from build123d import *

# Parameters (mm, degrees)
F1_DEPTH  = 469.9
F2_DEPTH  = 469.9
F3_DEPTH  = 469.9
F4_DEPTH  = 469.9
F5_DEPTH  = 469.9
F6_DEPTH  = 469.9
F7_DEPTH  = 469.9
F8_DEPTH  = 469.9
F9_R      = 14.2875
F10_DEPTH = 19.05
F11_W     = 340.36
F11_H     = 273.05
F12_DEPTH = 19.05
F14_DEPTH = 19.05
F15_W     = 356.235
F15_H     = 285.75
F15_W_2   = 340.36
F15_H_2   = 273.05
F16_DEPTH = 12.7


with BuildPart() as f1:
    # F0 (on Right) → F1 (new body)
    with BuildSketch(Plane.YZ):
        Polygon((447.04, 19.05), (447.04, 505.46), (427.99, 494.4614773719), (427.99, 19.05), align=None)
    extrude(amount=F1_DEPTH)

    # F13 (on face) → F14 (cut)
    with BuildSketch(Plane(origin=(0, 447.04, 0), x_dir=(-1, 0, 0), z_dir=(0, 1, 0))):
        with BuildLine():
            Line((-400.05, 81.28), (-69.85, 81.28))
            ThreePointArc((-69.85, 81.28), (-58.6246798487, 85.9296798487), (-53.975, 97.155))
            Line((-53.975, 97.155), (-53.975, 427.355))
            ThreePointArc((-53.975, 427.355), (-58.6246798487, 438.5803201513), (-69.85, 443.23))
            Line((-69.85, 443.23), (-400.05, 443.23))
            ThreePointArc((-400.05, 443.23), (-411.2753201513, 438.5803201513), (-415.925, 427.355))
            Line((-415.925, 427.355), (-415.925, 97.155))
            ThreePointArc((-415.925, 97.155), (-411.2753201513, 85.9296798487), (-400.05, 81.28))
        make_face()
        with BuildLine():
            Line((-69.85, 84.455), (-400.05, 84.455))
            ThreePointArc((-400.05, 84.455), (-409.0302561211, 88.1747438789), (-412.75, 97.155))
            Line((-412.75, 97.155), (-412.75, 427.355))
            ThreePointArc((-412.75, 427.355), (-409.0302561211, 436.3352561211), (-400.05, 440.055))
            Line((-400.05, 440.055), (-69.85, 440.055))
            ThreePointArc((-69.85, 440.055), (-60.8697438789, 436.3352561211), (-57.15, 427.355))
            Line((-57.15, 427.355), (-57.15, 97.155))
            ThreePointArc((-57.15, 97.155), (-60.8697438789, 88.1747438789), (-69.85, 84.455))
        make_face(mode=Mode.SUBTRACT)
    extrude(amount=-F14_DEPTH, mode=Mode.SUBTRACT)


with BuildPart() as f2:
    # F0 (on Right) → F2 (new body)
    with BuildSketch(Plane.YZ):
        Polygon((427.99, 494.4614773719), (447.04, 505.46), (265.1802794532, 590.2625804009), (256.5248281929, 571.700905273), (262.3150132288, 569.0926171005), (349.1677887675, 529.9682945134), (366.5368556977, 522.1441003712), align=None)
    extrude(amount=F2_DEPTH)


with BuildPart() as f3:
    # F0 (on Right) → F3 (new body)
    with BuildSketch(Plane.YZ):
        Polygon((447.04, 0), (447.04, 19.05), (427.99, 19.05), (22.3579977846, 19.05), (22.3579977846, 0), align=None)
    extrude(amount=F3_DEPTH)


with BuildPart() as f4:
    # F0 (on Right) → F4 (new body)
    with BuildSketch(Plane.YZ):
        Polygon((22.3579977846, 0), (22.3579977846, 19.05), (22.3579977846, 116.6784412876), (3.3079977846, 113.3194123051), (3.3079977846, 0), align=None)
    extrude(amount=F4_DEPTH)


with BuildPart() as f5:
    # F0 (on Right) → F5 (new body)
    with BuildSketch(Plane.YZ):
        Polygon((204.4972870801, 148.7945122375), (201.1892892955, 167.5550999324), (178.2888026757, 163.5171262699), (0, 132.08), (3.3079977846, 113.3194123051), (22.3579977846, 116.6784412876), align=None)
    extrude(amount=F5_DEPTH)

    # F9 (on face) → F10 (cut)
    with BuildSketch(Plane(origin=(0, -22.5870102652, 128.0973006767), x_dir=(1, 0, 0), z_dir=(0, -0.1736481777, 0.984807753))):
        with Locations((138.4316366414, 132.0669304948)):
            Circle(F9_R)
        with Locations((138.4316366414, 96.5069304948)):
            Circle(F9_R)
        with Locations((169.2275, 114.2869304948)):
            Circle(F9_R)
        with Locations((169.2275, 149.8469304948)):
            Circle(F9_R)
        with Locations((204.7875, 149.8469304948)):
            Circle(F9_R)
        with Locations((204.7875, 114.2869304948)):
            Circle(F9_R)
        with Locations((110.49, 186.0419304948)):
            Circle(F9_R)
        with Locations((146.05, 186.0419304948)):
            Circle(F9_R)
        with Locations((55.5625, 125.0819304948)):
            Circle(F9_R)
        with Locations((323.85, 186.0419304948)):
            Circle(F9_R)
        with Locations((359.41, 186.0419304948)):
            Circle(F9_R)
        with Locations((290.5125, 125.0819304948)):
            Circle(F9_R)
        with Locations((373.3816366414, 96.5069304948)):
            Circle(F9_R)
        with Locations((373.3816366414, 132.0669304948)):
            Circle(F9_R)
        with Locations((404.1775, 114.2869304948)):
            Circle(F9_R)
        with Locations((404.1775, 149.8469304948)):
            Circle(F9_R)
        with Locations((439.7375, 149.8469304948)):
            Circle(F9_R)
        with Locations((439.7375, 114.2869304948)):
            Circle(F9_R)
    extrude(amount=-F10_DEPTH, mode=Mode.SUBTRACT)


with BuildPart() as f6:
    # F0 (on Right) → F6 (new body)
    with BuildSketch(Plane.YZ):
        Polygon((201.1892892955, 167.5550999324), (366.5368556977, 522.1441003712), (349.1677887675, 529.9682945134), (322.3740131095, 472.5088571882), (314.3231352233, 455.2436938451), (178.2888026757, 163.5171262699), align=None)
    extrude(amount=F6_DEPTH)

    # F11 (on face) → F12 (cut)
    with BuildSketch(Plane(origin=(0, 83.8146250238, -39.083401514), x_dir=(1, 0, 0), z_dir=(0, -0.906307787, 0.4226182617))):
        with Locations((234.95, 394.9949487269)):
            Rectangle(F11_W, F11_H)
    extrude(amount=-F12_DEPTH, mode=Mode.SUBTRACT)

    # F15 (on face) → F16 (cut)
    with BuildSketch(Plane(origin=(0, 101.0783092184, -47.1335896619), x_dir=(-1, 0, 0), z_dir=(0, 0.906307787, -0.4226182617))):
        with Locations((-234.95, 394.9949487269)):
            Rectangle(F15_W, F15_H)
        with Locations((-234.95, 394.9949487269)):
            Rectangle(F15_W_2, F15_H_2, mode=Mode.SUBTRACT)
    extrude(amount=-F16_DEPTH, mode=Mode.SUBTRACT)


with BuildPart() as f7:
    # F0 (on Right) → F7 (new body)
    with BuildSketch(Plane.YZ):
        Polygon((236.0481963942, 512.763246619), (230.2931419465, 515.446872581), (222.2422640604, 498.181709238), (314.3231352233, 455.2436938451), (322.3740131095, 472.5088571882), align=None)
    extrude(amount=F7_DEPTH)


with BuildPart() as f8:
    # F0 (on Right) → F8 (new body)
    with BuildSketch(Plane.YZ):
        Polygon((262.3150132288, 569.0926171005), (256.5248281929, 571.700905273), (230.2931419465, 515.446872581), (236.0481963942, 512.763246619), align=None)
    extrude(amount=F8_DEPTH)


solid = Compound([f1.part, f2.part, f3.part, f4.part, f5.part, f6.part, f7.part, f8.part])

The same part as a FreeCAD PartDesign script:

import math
import FreeCAD as App
import Part
import Sketcher
Q = App.Units.Quantity


def add_polygon(sketch, points):
    """Adds a closed chain of lines whose ends are joined by coincident constraints."""
    first, n = sketch.GeometryCount, len(points)
    for a, b in zip(points, points[1:] + points[:1]):
        sketch.addGeometry(Part.LineSegment(App.Vector(*a, 0), App.Vector(*b, 0)), False)
    for i in range(n):
        sketch.addConstraint(Sketcher.Constraint("Coincident", first + i, 2, first + (i + 1) % n, 1))

doc = App.newDocument("Part")
body = doc.addObject("PartDesign::Body", "Body")
body.AllowCompound = True

# Sketch on YZ plane
sketch1 = doc.addObject("Sketcher::SketchObject", "Sketch")
body.addObject(sketch1)
sketch1.AttachmentSupport = (doc.YZ_Plane, [""])
sketch1.MapMode = "FlatFace"
add_polygon(sketch1, [(447, 19), (447, 505), (428, 494), (428, 19)])  # lines 0-3
sketch1.addConstraint([
    Sketcher.Constraint("Vertical", 0),
    Sketcher.Constraint("Vertical", 2),
    Sketcher.Constraint("Horizontal", 3),
    Sketcher.Constraint("Angle", 1, Q("-150 deg")),
    Sketcher.Constraint("DistanceX", 3, 1, 3, 2, Q("0.75 in")),
    Sketcher.Constraint("DistanceY", 0, 1, 0, 2, Q("19.15 in")),
    Sketcher.Constraint("DistanceX", -1, 1, 0, 2, Q("17.6 in")),
    Sketcher.Constraint("DistanceY", -1, 1, 0, 2, Q("19.9 in")),
])
pad1 = doc.addObject("PartDesign::Pad", "Pad")
body.addObject(pad1)
pad1.Profile = sketch1
pad1.Length = Q("18.5 in")

# Sketch on XZ plane
sketch2 = doc.addObject("Sketcher::SketchObject", "Sketch001")
body.addObject(sketch2)
sketch2.AttachmentSupport = (doc.XZ_Plane, [""])
sketch2.MapMode = "FlatFace"
sketch2.AttachmentOffset = App.Placement(App.Vector(0, 0, -17.6 * 25.4), App.Rotation())
sketch2.addGeometry([
    Part.LineSegment(App.Vector(400, 81, 0), App.Vector(70, 81, 0)),  # 0
    Part.ArcOfCircle(Part.Circle(App.Vector(70, 97, 0), App.Vector(0, 0, 1), 16), math.radians(180), math.radians(270)),  # 1
    Part.LineSegment(App.Vector(54, 97, 0), App.Vector(54, 427, 0)),  # 2
    Part.ArcOfCircle(Part.Circle(App.Vector(70, 427, 0), App.Vector(0, 0, 1), 16), math.radians(90), math.radians(180)),  # 3
    Part.LineSegment(App.Vector(70, 443, 0), App.Vector(400, 443, 0)),  # 4
    Part.ArcOfCircle(Part.Circle(App.Vector(400, 427, 0), App.Vector(0, 0, 1), 16), math.radians(0), math.radians(90)),  # 5
    Part.LineSegment(App.Vector(416, 427, 0), App.Vector(416, 97, 0)),  # 6
    Part.ArcOfCircle(Part.Circle(App.Vector(400, 97, 0), App.Vector(0, 0, 1), 16), math.radians(-90), math.radians(0)),  # 7
    Part.ArcOfCircle(Part.Circle(App.Vector(70, 97, 0), App.Vector(0, 0, 1), 13), math.radians(180), math.radians(270)),  # 8
    Part.LineSegment(App.Vector(70, 84, 0), App.Vector(400, 84, 0)),  # 9
    Part.ArcOfCircle(Part.Circle(App.Vector(400, 97, 0), App.Vector(0, 0, 1), 13), math.radians(-90), math.radians(0)),  # 10
    Part.LineSegment(App.Vector(413, 97, 0), App.Vector(413, 427, 0)),  # 11
    Part.ArcOfCircle(Part.Circle(App.Vector(400, 427, 0), App.Vector(0, 0, 1), 13), math.radians(0), math.radians(90)),  # 12
    Part.LineSegment(App.Vector(400, 440, 0), App.Vector(70, 440, 0)),  # 13
    Part.ArcOfCircle(Part.Circle(App.Vector(70, 427, 0), App.Vector(0, 0, 1), 13), math.radians(90), math.radians(180)),  # 14
    Part.LineSegment(App.Vector(57, 427, 0), App.Vector(57, 97, 0)),  # 15
], False)
sketch2.addConstraint([
    Sketcher.Constraint("Tangent", 0, 2, 1, 2),
    Sketcher.Constraint("Tangent", 1, 1, 2, 1),
    Sketcher.Constraint("Tangent", 2, 2, 3, 2),
    Sketcher.Constraint("Tangent", 3, 1, 4, 1),
    Sketcher.Constraint("Tangent", 4, 2, 5, 2),
    Sketcher.Constraint("Tangent", 5, 1, 6, 1),
    Sketcher.Constraint("Tangent", 6, 2, 7, 2),
    Sketcher.Constraint("Tangent", 7, 1, 0, 1),
    Sketcher.Constraint("Tangent", 8, 2, 9, 1),
    Sketcher.Constraint("Tangent", 9, 2, 10, 1),
    Sketcher.Constraint("Tangent", 10, 2, 11, 1),
    Sketcher.Constraint("Tangent", 11, 2, 12, 1),
    Sketcher.Constraint("Tangent", 12, 2, 13, 1),
    Sketcher.Constraint("Tangent", 13, 2, 14, 1),
    Sketcher.Constraint("Tangent", 14, 2, 15, 1),
    Sketcher.Constraint("Tangent", 15, 2, 8, 1),
    Sketcher.Constraint("Horizontal", 0),
    Sketcher.Constraint("Vertical", 2),
    Sketcher.Constraint("Horizontal", 4),
    Sketcher.Constraint("Vertical", 6),
    Sketcher.Constraint("Horizontal", 9),
    Sketcher.Constraint("Vertical", 11),
    Sketcher.Constraint("Horizontal", 13),
    Sketcher.Constraint("Vertical", 15),
    Sketcher.Constraint("Coincident", 8, 3, 1, 3),
    Sketcher.Constraint("Coincident", 10, 3, 7, 3),
    Sketcher.Constraint("Coincident", 12, 3, 5, 3),
    Sketcher.Constraint("Equal", 1, 3),
    Sketcher.Constraint("Equal", 3, 5),
    Sketcher.Constraint("Equal", 5, 7),
    Sketcher.Constraint("Equal", 12, 14),
    Sketcher.Constraint("Equal", 13, 2),
    Sketcher.Constraint("Radius", 8, Q("0.5 in")),
    Sketcher.Constraint("DistanceX", 0, 2, 0, 1, Q("13 in")),
    Sketcher.Constraint("Radius", 1, Q("0.625 in")),
    Sketcher.Constraint("DistanceY", -1, 1, 0, 2, Q("3.2 in")),
    Sketcher.Constraint("DistanceX", -1, 1, 1, 3, Q("2.75 in")),
])
pocket1 = doc.addObject("PartDesign::Pocket", "Pocket")
body.addObject(pocket1)
pocket1.Profile = sketch2
pocket1.Length = Q("0.75 in")
pocket1.Reversed = True
body2 = doc.addObject("PartDesign::Body", "Body001")

# Sketch on YZ plane
sketch3 = doc.addObject("Sketcher::SketchObject", "Sketch002")
body2.addObject(sketch3)
sketch3.AttachmentSupport = (doc.getObject("YZ_Plane001"), [""])
sketch3.MapMode = "FlatFace"
add_polygon(sketch3, [(428, 494), (447, 505), (265, 590), (257, 572), (262, 569), (349, 530), (367, 522)])  # lines 0-6
sketch3.addConstraint([
    Sketcher.Constraint("Perpendicular", 1, 2),
    Sketcher.Constraint("Parallel", 3, 4),
    Sketcher.Constraint("Parallel", 4, 5),
    Sketcher.Constraint("Parallel", 5, 6),
    Sketcher.Constraint("Angle", 0, Q("30 deg")),
    Sketcher.Constraint("Angle", 1, Q("155 deg")),
    Sketcher.Constraint("Distance", 1, Q("7.9 in")),
    Sketcher.Constraint("DistanceX", -1, 1, 0, 2, Q("17.6 in")),
    Sketcher.Constraint("DistanceY", -1, 1, 0, 2, Q("19.9 in")),
    Sketcher.Constraint("Distance", 5, Q("0.75 in")),
    Sketcher.Constraint("DistanceX", -1, 1, 6, 2, Q("16.85 in")),
    Sketcher.Constraint("Angle", 3, Q("-24.25 deg")),
    Sketcher.Constraint("DistanceY", -1, 1, 5, 2, 522.1441),
    Sketcher.Constraint("Distance", 4, 95.258161),
])
pad2 = doc.addObject("PartDesign::Pad", "Pad001")
body2.addObject(pad2)
pad2.Profile = sketch3
pad2.Length = Q("18.5 in")
body3 = doc.addObject("PartDesign::Body", "Body002")

# Sketch on YZ plane
sketch4 = doc.addObject("Sketcher::SketchObject", "Sketch003")
body3.addObject(sketch4)
sketch4.AttachmentSupport = (doc.getObject("YZ_Plane002"), [""])
sketch4.MapMode = "FlatFace"
add_polygon(sketch4, [(447, 0), (447, 19), (22, 19), (22, 0)])  # lines 0-3
sketch4.addConstraint([
    Sketcher.Constraint("Vertical", 0),
    Sketcher.Constraint("Horizontal", 1),
    Sketcher.Constraint("Vertical", 2),
    Sketcher.Constraint("Horizontal", 3),
    Sketcher.Constraint("PointOnObject", 2, 2, -1),
    Sketcher.Constraint("DistanceY", 0, 1, 0, 2, Q("0.75 in")),
    Sketcher.Constraint("DistanceX", -1, 1, 0, 2, Q("17.6 in")),
    Sketcher.Constraint("DistanceX", 1, 2, 1, 1, 424.682002),
])
pad3 = doc.addObject("PartDesign::Pad", "Pad002")
body3.addObject(pad3)
pad3.Profile = sketch4
pad3.Length = Q("18.5 in")
body4 = doc.addObject("PartDesign::Body", "Body003")

# Sketch on YZ plane
sketch5 = doc.addObject("Sketcher::SketchObject", "Sketch004")
body4.addObject(sketch5)
sketch5.AttachmentSupport = (doc.getObject("YZ_Plane003"), [""])
sketch5.MapMode = "FlatFace"
add_polygon(sketch5, [(22, 0), (22, 117), (3, 113), (3, 0)])  # lines 0-3
sketch5.addConstraint([
    Sketcher.Constraint("Vertical", 0),
    Sketcher.Constraint("Vertical", 2),
    Sketcher.Constraint("Horizontal", 3),
    Sketcher.Constraint("PointOnObject", 2, 2, -1),
    Sketcher.Constraint("Angle", 1, Q("-170 deg")),
    Sketcher.Constraint("DistanceX", 3, 1, 3, 2, Q("0.75 in")),
    Sketcher.Constraint("DistanceY", 0, 1, 0, 2, 116.678441),
    Sketcher.Constraint("DistanceX", -1, 1, 0, 2, 22.357998),
])
pad4 = doc.addObject("PartDesign::Pad", "Pad003")
body4.addObject(pad4)
pad4.Profile = sketch5
pad4.Length = Q("18.5 in")
body5 = doc.addObject("PartDesign::Body", "Body004")

# Sketch on YZ plane
sketch6 = doc.addObject("Sketcher::SketchObject", "Sketch005")
body5.addObject(sketch6)
sketch6.AttachmentSupport = (doc.getObject("YZ_Plane004"), [""])
sketch6.MapMode = "FlatFace"
add_polygon(sketch6, [(204, 149), (201, 168), (178, 164), (0, 132), (3, 113)])  # lines 0-4
sketch6.addConstraint([
    Sketcher.Constraint("PointOnObject", 2, 2, -2),
    Sketcher.Constraint("Perpendicular", 0, 1),
    Sketcher.Constraint("Parallel", 1, 2),
    Sketcher.Constraint("Perpendicular", 2, 3),
    Sketcher.Constraint("Perpendicular", 3, 4),
    Sketcher.Constraint("Angle", 0, Q("100 deg")),
    Sketcher.Constraint("DistanceY", -1, 1, 2, 2, Q("5.2 in")),
    Sketcher.Constraint("Distance", 0, Q("0.75 in")),
    Sketcher.Constraint("DistanceY", -1, 1, 0, 2, 167.5551),
    Sketcher.Constraint("Distance", 1, 23.253764),
])
pad5 = doc.addObject("PartDesign::Pad", "Pad004")
body5.addObject(pad5)
pad5.Profile = sketch6
pad5.Length = Q("18.5 in")

# Sketch on an angled plane
sketch7 = doc.addObject("Sketcher::SketchObject", "Sketch006")
body5.addObject(sketch7)
sketch7.Placement = App.Placement(App.Vector(0, -22.58701, 128.097301), App.Rotation(App.Vector(1, 0, 0), App.Vector(0, 0.984807753, 0.173648178), App.Vector(0, -0.173648178, 0.984807753), "ZXY"))
sketch7.addGeometry([
    Part.Circle(App.Vector(138, 132, 0), App.Vector(0, 0, 1), 14),  # 0
    Part.Circle(App.Vector(138, 97, 0), App.Vector(0, 0, 1), 14),  # 1
    Part.Circle(App.Vector(169, 114, 0), App.Vector(0, 0, 1), 14),  # 2
    Part.Circle(App.Vector(169, 150, 0), App.Vector(0, 0, 1), 14),  # 3
    Part.Circle(App.Vector(205, 150, 0), App.Vector(0, 0, 1), 14),  # 4
    Part.Circle(App.Vector(205, 114, 0), App.Vector(0, 0, 1), 14),  # 5
    Part.Circle(App.Vector(110, 186, 0), App.Vector(0, 0, 1), 14),  # 6
    Part.Circle(App.Vector(146, 186, 0), App.Vector(0, 0, 1), 14),  # 7
    Part.Circle(App.Vector(56, 125, 0), App.Vector(0, 0, 1), 14),  # 8
    Part.Circle(App.Vector(324, 186, 0), App.Vector(0, 0, 1), 14),  # 9
    Part.Circle(App.Vector(359, 186, 0), App.Vector(0, 0, 1), 14),  # 10
    Part.Circle(App.Vector(291, 125, 0), App.Vector(0, 0, 1), 14),  # 11
    Part.Circle(App.Vector(373, 97, 0), App.Vector(0, 0, 1), 14),  # 12
    Part.Circle(App.Vector(373, 132, 0), App.Vector(0, 0, 1), 14),  # 13
    Part.Circle(App.Vector(404, 114, 0), App.Vector(0, 0, 1), 14),  # 14
    Part.Circle(App.Vector(404, 150, 0), App.Vector(0, 0, 1), 14),  # 15
    Part.Circle(App.Vector(440, 150, 0), App.Vector(0, 0, 1), 14),  # 16
    Part.Circle(App.Vector(440, 114, 0), App.Vector(0, 0, 1), 14),  # 17
], False)
sketch7.addConstraint([
    Sketcher.Constraint("Equal", 0, 1),
    Sketcher.Constraint("Equal", 1, 2),
    Sketcher.Constraint("Equal", 2, 3),
    Sketcher.Constraint("Equal", 3, 4),
    Sketcher.Constraint("Equal", 4, 5),
    Sketcher.Constraint("Equal", 5, 6),
    Sketcher.Constraint("Equal", 6, 7),
    Sketcher.Constraint("Equal", 7, 8),
    Sketcher.Constraint("Equal", 8, 9),
    Sketcher.Constraint("Equal", 9, 10),
    Sketcher.Constraint("Equal", 10, 11),
    Sketcher.Constraint("Equal", 11, 12),
    Sketcher.Constraint("Equal", 12, 13),
    Sketcher.Constraint("Equal", 13, 14),
    Sketcher.Constraint("Equal", 14, 15),
    Sketcher.Constraint("Equal", 15, 16),
    Sketcher.Constraint("Equal", 16, 17),
    Sketcher.Constraint("Horizontal", 3, 3, 4, 3),
    Sketcher.Constraint("Horizontal", 2, 3, 5, 3),
    Sketcher.Constraint("Horizontal", 6, 3, 7, 3),
    Sketcher.Constraint("Horizontal", 7, 3, 9, 3),
    Sketcher.Constraint("Horizontal", 9, 3, 10, 3),
    Sketcher.Constraint("Horizontal", 8, 3, 11, 3),
    Sketcher.Constraint("Horizontal", 1, 3, 12, 3),
    Sketcher.Constraint("Horizontal", 0, 3, 13, 3),
    Sketcher.Constraint("Horizontal", 5, 3, 14, 3),
    Sketcher.Constraint("Horizontal", 4, 3, 15, 3),
    Sketcher.Constraint("Horizontal", 15, 3, 16, 3),
    Sketcher.Constraint("Horizontal", 14, 3, 17, 3),
    Sketcher.Constraint("Vertical", 0, 3, 1, 3),
    Sketcher.Constraint("Vertical", 2, 3, 3, 3),
    Sketcher.Constraint("Vertical", 4, 3, 5, 3),
    Sketcher.Constraint("Vertical", 12, 3, 13, 3),
    Sketcher.Constraint("Vertical", 14, 3, 15, 3),
    Sketcher.Constraint("Vertical", 16, 3, 17, 3),
    Sketcher.Constraint("Diameter", 0, Q("1.125 in")),
    Sketcher.Constraint("DistanceX", 7, 3, 9, 3, Q("7 in")),
    Sketcher.Constraint("DistanceY", 1, 3, 0, 3, Q("1.4 in")),
    Sketcher.Constraint("DistanceY", 1, 3, 2, 3, Q("0.7 in")),
    Sketcher.Constraint("DistanceY", 0, 3, 3, 3, Q("0.7 in")),
    Sketcher.Constraint("DistanceX", 3, 3, 4, 3, Q("1.4 in")),
    Sketcher.Constraint("DistanceX", 6, 3, 7, 3, Q("1.4 in")),
    Sketcher.Constraint("DistanceY", 8, 3, 6, 3, Q("2.4 in")),
    Sketcher.Constraint("DistanceX", 9, 3, 10, 3, Q("1.4 in")),
    Sketcher.Constraint("DistanceX", 15, 3, 16, 3, Q("1.4 in")),
    Sketcher.Constraint("DistanceX", -1, 1, 6, 3, Q("4.35 in")),
    Sketcher.Constraint("DistanceX", -1, 1, 4, 3, Q("8.0625 in")),
    Sketcher.Constraint("DistanceX", -1, 1, 8, 3, Q("2.1875 in")),
    Sketcher.Constraint("DistanceX", -1, 1, 11, 3, Q("11.4375 in")),
    Sketcher.Constraint("DistanceX", -1, 1, 16, 3, Q("17.3125 in")),
    Sketcher.Constraint("DistanceY", 0, 3, 6, 3, Q("2.125 in")),
    Sketcher.Constraint("DistanceY", -1, 1, 0, 3, 132.066931),
    Sketcher.Constraint("DistanceX", -1, 1, 0, 3, 138.431637),
    Sketcher.Constraint("DistanceX", -1, 1, 12, 3, 373.381637),
])
pocket2 = doc.addObject("PartDesign::Pocket", "Pocket001")
body5.addObject(pocket2)
pocket2.Profile = sketch7
pocket2.Length = Q("0.75 in")
body6 = doc.addObject("PartDesign::Body", "Body005")

# Sketch on YZ plane
sketch8 = doc.addObject("Sketcher::SketchObject", "Sketch007")
body6.addObject(sketch8)
sketch8.AttachmentSupport = (doc.getObject("YZ_Plane005"), [""])
sketch8.MapMode = "FlatFace"
add_polygon(sketch8, [(201, 168), (367, 522), (349, 530), (178, 164)])  # lines 0-3
sketch8.addConstraint([
    Sketcher.Constraint("Parallel", 0, 2),
    Sketcher.Constraint("Angle", 0, Q("65 deg")),
    Sketcher.Constraint("Angle", 3, Q("10 deg")),
    Sketcher.Constraint("Distance", 1, Q("0.75 in")),
    Sketcher.Constraint("Angle", 1, Q("155.75 deg")),
    Sketcher.Constraint("DistanceY", -1, 1, 0, 2, 522.1441),
    Sketcher.Constraint("DistanceY", -1, 1, 3, 2, 167.5551),
    Sketcher.Constraint("DistanceX", -1, 1, 1, 2, 349.167789),
])
pad6 = doc.addObject("PartDesign::Pad", "Pad005")
body6.addObject(pad6)
pad6.Profile = sketch8
pad6.Length = Q("18.5 in")

# Sketch on an angled plane
sketch9 = doc.addObject("Sketcher::SketchObject", "Sketch008")
body6.addObject(sketch9)
sketch9.Placement = App.Placement(App.Vector(0, 83.814625, -39.083402), App.Rotation(App.Vector(1, 0, 0), App.Vector(0, 0.422618262, 0.906307787), App.Vector(0, -0.906307787, 0.422618262), "ZXY"))
add_polygon(sketch9, [(65, 532), (65, 258), (405, 258), (405, 532)])  # lines 0-3
sketch9.addConstraint([
    Sketcher.Constraint("Vertical", 0),
    Sketcher.Constraint("Horizontal", 1),
    Sketcher.Constraint("Vertical", 2),
    Sketcher.Constraint("Horizontal", 3),
    Sketcher.Constraint("DistanceX", 1, 1, 1, 2, Q("13.4 in")),
    Sketcher.Constraint("DistanceY", 0, 2, 0, 1, Q("10.75 in")),
    Sketcher.Constraint("DistanceX", -1, 1, 0, 2, Q("2.55 in")),
    Sketcher.Constraint("DistanceY", -1, 1, 0, 2, 258.469949),
])
pocket3 = doc.addObject("PartDesign::Pocket", "Pocket002")
body6.addObject(pocket3)
pocket3.Profile = sketch9
pocket3.Length = Q("0.75 in")

# Sketch on an angled plane
sketch10 = doc.addObject("Sketcher::SketchObject", "Sketch009")
body6.addObject(sketch10)
sketch10.Placement = App.Placement(App.Vector(0, 101.078309, -47.13359), App.Rotation(App.Vector(-1, 0, 0), App.Vector(0, 0.422618262, 0.906307787), App.Vector(0, 0.906307787, -0.422618262), "ZXY"))
add_polygon(sketch10, [(-413, 538), (-413, 252), (-57, 252), (-57, 538)])  # lines 0-3
add_polygon(sketch10, [(-65, 258), (-405, 258), (-405, 532), (-65, 532)])  # lines 4-7
sketch10.addConstraint([
    Sketcher.Constraint("Vertical", 0),
    Sketcher.Constraint("Horizontal", 1),
    Sketcher.Constraint("Vertical", 2),
    Sketcher.Constraint("Horizontal", 3),
    Sketcher.Constraint("Horizontal", 4),
    Sketcher.Constraint("Vertical", 5),
    Sketcher.Constraint("Horizontal", 6),
    Sketcher.Constraint("Vertical", 7),
    Sketcher.Constraint("DistanceX", 4, 2, 4, 1, Q("13.4 in")),
    Sketcher.Constraint("DistanceY", 4, 2, 3, 2, Q("11 in")),
    Sketcher.Constraint("DistanceY", 0, 2, 5, 2, Q("11 in")),
    Sketcher.Constraint("DistanceY", 0, 2, 0, 1, Q("11.25 in")),
    Sketcher.Constraint("DistanceX", 1, 1, 1, 2, Q("14.025 in")),
    Sketcher.Constraint("DistanceX", 4, 2, -1, 1, Q("15.95 in")),
    Sketcher.Constraint("DistanceX", 0, 2, 4, 2, Q("0.3125 in")),
    Sketcher.Constraint("DistanceY", -1, 1, 0, 2, 252.119949),
])
pocket4 = doc.addObject("PartDesign::Pocket", "Pocket003")
body6.addObject(pocket4)
pocket4.Profile = sketch10
pocket4.Length = Q("0.5 in")
body7 = doc.addObject("PartDesign::Body", "Body006")

# Sketch on YZ plane
sketch11 = doc.addObject("Sketcher::SketchObject", "Sketch010")
body7.addObject(sketch11)
sketch11.AttachmentSupport = (doc.getObject("YZ_Plane006"), [""])
sketch11.MapMode = "FlatFace"
add_polygon(sketch11, [(236, 513), (230, 515), (222, 498), (314, 455), (322, 473)])  # lines 0-4
sketch11.addConstraint([
    Sketcher.Constraint("Perpendicular", 0, 1),
    Sketcher.Constraint("Perpendicular", 1, 2),
    Sketcher.Constraint("Perpendicular", 2, 3),
    Sketcher.Constraint("Perpendicular", 3, 4),
    Sketcher.Constraint("Distance", 2, Q("4 in")),
    Sketcher.Constraint("Angle", 0, Q("155 deg")),
    Sketcher.Constraint("Distance", 0, Q("0.25 in")),
    Sketcher.Constraint("Distance", 1, Q("0.75 in")),
    Sketcher.Constraint("DistanceX", -1, 1, 0, 2, 230.293142),
    Sketcher.Constraint("DistanceY", -1, 1, 1, 2, 498.181709),
])
pad7 = doc.addObject("PartDesign::Pad", "Pad006")
body7.addObject(pad7)
pad7.Profile = sketch11
pad7.Length = Q("18.5 in")
body8 = doc.addObject("PartDesign::Body", "Body007")

# Sketch on YZ plane
sketch12 = doc.addObject("Sketcher::SketchObject", "Sketch011")
body8.addObject(sketch12)
sketch12.AttachmentSupport = (doc.getObject("YZ_Plane007"), [""])
sketch12.MapMode = "FlatFace"
add_polygon(sketch12, [(262, 569), (257, 572), (230, 515), (236, 513)])  # lines 0-3
sketch12.addConstraint([
    Sketcher.Constraint("Perpendicular", 1, 2),
    Sketcher.Constraint("Perpendicular", 2, 3),
    Sketcher.Constraint("Angle", 1, Q("-115 deg")),
    Sketcher.Constraint("Distance", 2, Q("0.25 in")),
    Sketcher.Constraint("Angle", 0, Q("155.75 deg")),
    Sketcher.Constraint("DistanceX", -1, 1, 0, 2, 256.524828),
    Sketcher.Constraint("DistanceX", -1, 1, 1, 2, 230.293142),
    Sketcher.Constraint("DistanceY", -1, 1, 0, 2, 571.700905),
])
pad8 = doc.addObject("PartDesign::Pad", "Pad007")
body8.addObject(pad8)
pad8.Profile = sketch12
pad8.Length = Q("18.5 in")

doc.recompute()
